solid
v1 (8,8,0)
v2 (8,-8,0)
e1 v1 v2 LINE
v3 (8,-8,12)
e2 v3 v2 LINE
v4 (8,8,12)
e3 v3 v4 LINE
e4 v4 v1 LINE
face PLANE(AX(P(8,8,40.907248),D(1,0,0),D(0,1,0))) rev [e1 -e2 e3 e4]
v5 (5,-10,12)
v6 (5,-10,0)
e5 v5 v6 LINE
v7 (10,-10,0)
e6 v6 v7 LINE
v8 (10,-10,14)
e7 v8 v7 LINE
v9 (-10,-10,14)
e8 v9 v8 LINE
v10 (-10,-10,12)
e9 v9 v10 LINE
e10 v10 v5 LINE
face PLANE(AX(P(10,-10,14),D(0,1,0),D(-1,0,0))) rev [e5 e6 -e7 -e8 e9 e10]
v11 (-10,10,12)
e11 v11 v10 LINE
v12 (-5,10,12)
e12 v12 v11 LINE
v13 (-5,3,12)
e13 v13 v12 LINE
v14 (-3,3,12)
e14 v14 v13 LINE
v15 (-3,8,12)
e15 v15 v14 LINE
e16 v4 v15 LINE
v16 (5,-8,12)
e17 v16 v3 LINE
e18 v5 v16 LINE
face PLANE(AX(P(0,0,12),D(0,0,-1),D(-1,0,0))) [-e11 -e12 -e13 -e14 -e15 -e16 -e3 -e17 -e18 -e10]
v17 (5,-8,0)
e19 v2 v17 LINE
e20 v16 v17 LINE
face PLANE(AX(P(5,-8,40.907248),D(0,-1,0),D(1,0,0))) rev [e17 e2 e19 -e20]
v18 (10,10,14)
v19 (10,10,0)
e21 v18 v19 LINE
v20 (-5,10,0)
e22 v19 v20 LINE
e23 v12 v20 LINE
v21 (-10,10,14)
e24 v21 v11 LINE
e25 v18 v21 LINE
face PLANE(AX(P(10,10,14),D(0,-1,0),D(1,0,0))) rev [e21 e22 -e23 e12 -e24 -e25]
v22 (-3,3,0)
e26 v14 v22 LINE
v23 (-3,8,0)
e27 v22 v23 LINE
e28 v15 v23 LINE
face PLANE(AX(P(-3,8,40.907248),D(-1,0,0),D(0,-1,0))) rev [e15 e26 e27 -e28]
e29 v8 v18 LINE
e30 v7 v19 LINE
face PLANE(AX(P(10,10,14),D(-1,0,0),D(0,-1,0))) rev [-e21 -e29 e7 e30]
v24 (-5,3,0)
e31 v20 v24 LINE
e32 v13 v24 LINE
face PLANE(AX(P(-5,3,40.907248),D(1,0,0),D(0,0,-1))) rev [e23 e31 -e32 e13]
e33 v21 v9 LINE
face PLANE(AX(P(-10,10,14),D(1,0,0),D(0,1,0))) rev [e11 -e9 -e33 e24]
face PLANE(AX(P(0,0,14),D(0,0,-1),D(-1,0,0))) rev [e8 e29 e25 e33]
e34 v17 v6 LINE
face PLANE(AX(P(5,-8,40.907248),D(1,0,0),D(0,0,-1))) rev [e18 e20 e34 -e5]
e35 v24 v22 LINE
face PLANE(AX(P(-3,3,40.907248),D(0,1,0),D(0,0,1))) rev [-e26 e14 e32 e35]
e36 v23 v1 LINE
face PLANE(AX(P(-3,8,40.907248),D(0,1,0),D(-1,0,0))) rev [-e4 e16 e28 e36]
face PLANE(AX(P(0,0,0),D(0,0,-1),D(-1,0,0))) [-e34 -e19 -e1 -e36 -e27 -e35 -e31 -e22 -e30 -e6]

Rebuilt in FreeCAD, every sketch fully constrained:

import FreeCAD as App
import Part
import Sketcher

V = App.Vector
Q = App.Units.Quantity


def add_polygon(sketch, points):
    """Adds a closed chain of lines whose ends are joined by coincident constraints."""
    first, n = sketch.GeometryCount, len(points)
    for a, b in zip(points, points[1:] + points[:1]):
        sketch.addGeometry(Part.LineSegment(App.Vector(*a, 0), App.Vector(*b, 0)), False)
    for i in range(n):
        sketch.addConstraint(Sketcher.Constraint("Coincident", first + i, 2, first + (i + 1) % n, 1))

doc = App.newDocument("Part")
params = doc.addObject("Spreadsheet::Sheet", "Params")
for row, (alias, value) in enumerate([
    ("sketch1_width", "20 mm"),
    ("pad1_length", "14 mm"),
    ("sketch2_width", "11 mm"),
    ("sketch2_width2", "3 mm"),
    ("sketch2_width3", "15 mm"),
    ("sketch2_width4", "5 mm"),
    ("sketch2_height", "16 mm"),
    ("pocket1_length", "12 mm"),
], start=1):
    params.set(f"A{row}", alias)
    params.set(f"B{row}", "=" + value)
    params.setAlias(f"B{row}", alias)

body = doc.addObject("PartDesign::Body", "Body")

# Sketch on XY plane
sketch1 = doc.addObject("Sketcher::SketchObject", "Sketch")
body.addObject(sketch1)
sketch1.AttachmentSupport = (doc.XY_Plane, [""])
sketch1.MapMode = "FlatFace"
add_polygon(sketch1, [(-10, 10), (-10, -10), (10, -10), (10, 10)])  # lines 0-3
sketch1.addConstraint(Sketcher.Constraint("Vertical", 0))
sketch1.addConstraint(Sketcher.Constraint("Horizontal", 1))
sketch1.addConstraint(Sketcher.Constraint("Vertical", 2))
sketch1.addConstraint(Sketcher.Constraint("Horizontal", 3))
sketch1.addConstraint(Sketcher.Constraint("Symmetric", 0, 2, 2, 2, -1, 1))
sketch1.addConstraint(Sketcher.Constraint("Equal", 3, 0))
sketch1.addConstraint(Sketcher.Constraint("DistanceX", 1, 1, 1, 2, Q("20 mm")))
sketch1.setExpression("Constraints[10]", "Params.sketch1_width")
pad1 = doc.addObject("PartDesign::Pad", "Pad")
body.addObject(pad1)
pad1.Profile = sketch1
pad1.setExpression("Length", "Params.pad1_length")

# Sketch on XY plane
sketch2 = doc.addObject("Sketcher::SketchObject", "Sketch001")
body.addObject(sketch2)
sketch2.AttachmentSupport = (doc.XY_Plane, [""])
sketch2.MapMode = "FlatFace"
add_polygon(sketch2, [(-3, 8), (8, 8), (8, -8), (5, -8), (5, -10), (-10, -10), (-10, 10), (-5, 10), (-5, 3), (-3, 3)])  # lines 0-9
sketch2.addConstraint(Sketcher.Constraint("Horizontal", 0))
sketch2.addConstraint(Sketcher.Constraint("Vertical", 1))
sketch2.addConstraint(Sketcher.Constraint("Horizontal", 2))
sketch2.addConstraint(Sketcher.Constraint("Vertical", 3))
sketch2.addConstraint(Sketcher.Constraint("Horizontal", 4))
sketch2.addConstraint(Sketcher.Constraint("Vertical", 5))
sketch2.addConstraint(Sketcher.Constraint("Horizontal", 6))
sketch2.addConstraint(Sketcher.Constraint("Vertical", 7))
sketch2.addConstraint(Sketcher.Constraint("Horizontal", 8))
sketch2.addConstraint(Sketcher.Constraint("Vertical", 9))
sketch2.addConstraint(Sketcher.Constraint("Symmetric", 3, 2, 6, 2, -1, 1))
sketch2.addConstraint(Sketcher.Constraint("Equal", 8, 3))
sketch2.addConstraint(Sketcher.Constraint("Equal", 6, 9))
sketch2.addConstraint(Sketcher.Constraint("DistanceX", 0, 1, 0, 2, Q("11 mm")))
sketch2.addConstraint(Sketcher.Constraint("DistanceX", 2, 2, 2, 1, Q("3 mm")))
sketch2.addConstraint(Sketcher.Constraint("DistanceX", 4, 2, 4, 1, Q("15 mm")))
sketch2.addConstraint(Sketcher.Constraint("DistanceX", 6, 1, 6, 2, Q("5 mm")))
sketch2.addConstraint(Sketcher.Constraint("DistanceY", 1, 2, 1, 1, Q("16 mm")))
sketch2.addConstraint(Sketcher.Constraint("DistanceY", 5, 1, 5, 2, Q("20 mm")))
sketch2.setExpression("Constraints[23]", "Params.sketch2_width")
sketch2.setExpression("Constraints[24]", "Params.sketch2_width2")
sketch2.setExpression("Constraints[25]", "Params.sketch2_width3")
sketch2.setExpression("Constraints[26]", "Params.sketch2_width4")
sketch2.setExpression("Constraints[27]", "Params.sketch2_height")
pocket1 = doc.addObject("PartDesign::Pocket", "Pocket")
body.addObject(pocket1)
pocket1.Profile = sketch2
pocket1.setExpression("Length", "Params.pocket1_length")
pocket1.Reversed = True

doc.recompute()
